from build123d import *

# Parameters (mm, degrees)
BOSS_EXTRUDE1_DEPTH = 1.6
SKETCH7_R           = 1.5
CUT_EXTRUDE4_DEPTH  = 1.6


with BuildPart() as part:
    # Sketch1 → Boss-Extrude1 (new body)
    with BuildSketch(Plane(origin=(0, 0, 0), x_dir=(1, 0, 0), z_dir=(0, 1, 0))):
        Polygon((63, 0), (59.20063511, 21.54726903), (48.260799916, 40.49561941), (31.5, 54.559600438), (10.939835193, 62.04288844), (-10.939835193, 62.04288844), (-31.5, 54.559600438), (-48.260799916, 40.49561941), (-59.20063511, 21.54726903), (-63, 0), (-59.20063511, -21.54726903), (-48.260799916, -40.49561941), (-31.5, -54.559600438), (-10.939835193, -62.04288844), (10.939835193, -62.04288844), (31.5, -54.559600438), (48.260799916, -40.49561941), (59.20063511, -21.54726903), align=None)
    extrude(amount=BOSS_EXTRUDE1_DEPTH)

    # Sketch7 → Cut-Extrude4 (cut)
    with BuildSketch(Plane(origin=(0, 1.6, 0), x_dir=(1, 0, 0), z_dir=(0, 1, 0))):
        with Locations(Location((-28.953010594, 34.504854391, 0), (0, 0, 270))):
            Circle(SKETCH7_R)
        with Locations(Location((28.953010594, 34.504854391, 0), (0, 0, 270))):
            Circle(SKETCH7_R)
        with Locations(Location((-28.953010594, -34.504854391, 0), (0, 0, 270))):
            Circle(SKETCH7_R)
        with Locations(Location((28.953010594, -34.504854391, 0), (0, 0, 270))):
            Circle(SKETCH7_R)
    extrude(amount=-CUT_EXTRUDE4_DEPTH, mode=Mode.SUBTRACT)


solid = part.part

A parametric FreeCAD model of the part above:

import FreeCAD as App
import Part
import Sketcher
from FreeCAD import Vector
Q = App.Units.Quantity

doc = App.newDocument("Part")
params = doc.addObject("Spreadsheet::Sheet", "Params")
for row, (alias, value) in enumerate([
    ("pad1_length", "1.6 mm"),
    ("sketch2_diameter", "3 mm"),
    ("pocket1_length", "1.6 mm"),
], start=1):
    params.set(f"A{row}", alias)
    params.set(f"B{row}", "=" + value)
    params.setAlias(f"B{row}", alias)

body = doc.addObject("PartDesign::Body", "Body")

sketch1 = body.newObject("Sketcher::SketchObject", "Sketch")
sketch1.AttachmentSupport = (doc.getObject("XZ_Plane"), [""])
sketch1.MapMode = "FlatFace"
sketch1.addGeometry([
    Part.LineSegment(Vector(63, 0, 0), Vector(59.200635, -21.547269, 0)),
    Part.LineSegment(Vector(59.200635, -21.547269, 0), Vector(48.2608, -40.495619, 0)),
    Part.LineSegment(Vector(48.2608, -40.495619, 0), Vector(31.5, -54.5596, 0)),
    Part.LineSegment(Vector(31.5, -54.5596, 0), Vector(10.939835, -62.042888, 0)),
    Part.LineSegment(Vector(10.939835, -62.042888, 0), Vector(-10.939835, -62.042888, 0)),
    Part.LineSegment(Vector(-10.939835, -62.042888, 0), Vector(-31.5, -54.5596, 0)),
    Part.LineSegment(Vector(-31.5, -54.5596, 0), Vector(-48.2608, -40.495619, 0)),
    Part.LineSegment(Vector(-48.2608, -40.495619, 0), Vector(-59.200635, -21.547269, 0)),
    Part.LineSegment(Vector(-59.200635, -21.547269, 0), Vector(-63, 0, 0)),
    Part.LineSegment(Vector(-63, 0, 0), Vector(-59.200635, 21.547269, 0)),
    Part.LineSegment(Vector(-59.200635, 21.547269, 0), Vector(-48.2608, 40.495619, 0)),
    Part.LineSegment(Vector(-48.2608, 40.495619, 0), Vector(-31.5, 54.5596, 0)),
    Part.LineSegment(Vector(-31.5, 54.5596, 0), Vector(-10.939835, 62.042888, 0)),
    Part.LineSegment(Vector(-10.939835, 62.042888, 0), Vector(10.939835, 62.042888, 0)),
    Part.LineSegment(Vector(10.939835, 62.042888, 0), Vector(31.5, 54.5596, 0)),
    Part.LineSegment(Vector(31.5, 54.5596, 0), Vector(48.2608, 40.495619, 0)),
    Part.LineSegment(Vector(48.2608, 40.495619, 0), Vector(59.200635, 21.547269, 0)),
    Part.LineSegment(Vector(59.200635, 21.547269, 0), Vector(63, 0, 0)),
], False)
sketch1.addConstraint([
    Sketcher.Constraint("Coincident", 0, 2, 1, 1),
    Sketcher.Constraint("Coincident", 1, 2, 2, 1),
    Sketcher.Constraint("Coincident", 2, 2, 3, 1),
    Sketcher.Constraint("Coincident", 3, 2, 4, 1),
    Sketcher.Constraint("Coincident", 4, 2, 5, 1),
    Sketcher.Constraint("Coincident", 5, 2, 6, 1),
    Sketcher.Constraint("Coincident", 6, 2, 7, 1),
    Sketcher.Constraint("Coincident", 7, 2, 8, 1),
    Sketcher.Constraint("Coincident", 8, 2, 9, 1),
    Sketcher.Constraint("Coincident", 9, 2, 10, 1),
    Sketcher.Constraint("Coincident", 10, 2, 11, 1),
    Sketcher.Constraint("Coincident", 11, 2, 12, 1),
    Sketcher.Constraint("Coincident", 12, 2, 13, 1),
    Sketcher.Constraint("Coincident", 13, 2, 14, 1),
    Sketcher.Constraint("Coincident", 14, 2, 15, 1),
    Sketcher.Constraint("Coincident", 15, 2, 16, 1),
    Sketcher.Constraint("Coincident", 16, 2, 17, 1),
    Sketcher.Constraint("Coincident", 17, 2, 0, 1),
    Sketcher.Constraint("Horizontal", 4),
    Sketcher.Constraint("Horizontal", 13),
    Sketcher.Constraint("Symmetric", 0, 2, 9, 2, -1, 1),
    Sketcher.Constraint("Symmetric", 1, 2, 10, 2, -1, 1),
    Sketcher.Constraint("Symmetric", 2, 2, 11, 2, -1, 1),
    Sketcher.Constraint("Symmetric", 3, 2, 12, 2, -1, 1),
    Sketcher.Constraint("Symmetric", 5, 2, 14, 2, -1, 1),
    Sketcher.Constraint("Symmetric", 6, 2, 15, 2, -1, 1),
    Sketcher.Constraint("Symmetric", 7, 2, 16, 2, -1, 1),
    Sketcher.Constraint("Symmetric", 8, 2, 17, 2, -1, 1),
    Sketcher.Constraint("Symmetric", 2, 2, 5, 2, -2),
    Sketcher.Constraint("Symmetric", 1, 2, 6, 2, -2),
    Sketcher.Constraint("Symmetric", 0, 2, 7, 2, -2),
    Sketcher.Constraint("PointOnObject", 8, 2, -1),
    Sketcher.Constraint("Parallel", 5, 14),
    Sketcher.Constraint("Vertical", 4, 2, 12, 2),
    Sketcher.Constraint("Equal", 0, 1),
    Sketcher.Constraint("Equal", 1, 2),
    Sketcher.Constraint("Equal", 2, 3),
    Sketcher.Constraint("Angle", 0, Q("-100 deg")),
    Sketcher.Constraint("Angle", 1, Q("-120 deg")),
    Sketcher.Constraint("Angle", 2, Q("-140 deg")),
    Sketcher.Constraint("Angle", 3, Q("-160 deg")),
    Sketcher.Constraint("DistanceX", 8, 2, -1, 1, 63.0),
    Sketcher.Constraint("DistanceX", 5, 2, 2, 2, 63.0),
])
pad1 = body.newObject("PartDesign::Pad", "Pad")
pad1.Profile = sketch1
pad1.setExpression("Length", "Params.pad1_length")
pad1.Reversed = True

sketch2 = body.newObject("Sketcher::SketchObject", "Sketch001")
sketch2.AttachmentSupport = (doc.getObject("XZ_Plane"), [""])
sketch2.MapMode = "FlatFace"
sketch2.AttachmentOffset = App.Placement(Vector(0, 0, -1.6), App.Rotation())
sketch2.addGeometry([
    Part.Circle(Vector(-28.953011, -34.504854, 0), Vector(0, 0, 1), 1.5),
    Part.Circle(Vector(28.953011, -34.504854, 0), Vector(0, 0, 1), 1.5),
    Part.Circle(Vector(-28.953011, 34.504854, 0), Vector(0, 0, 1), 1.5),
    Part.Circle(Vector(28.953011, 34.504854, 0), Vector(0, 0, 1), 1.5),
], False)
sketch2.addConstraint([
    Sketcher.Constraint("Equal", 0, 1),
    Sketcher.Constraint("Equal", 1, 2),
    Sketcher.Constraint("Equal", 2, 3),
    Sketcher.Constraint("Symmetric", 1, 3, 2, 3, -1, 1),
    Sketcher.Constraint("Symmetric", 0, 3, 3, 3, -1, 1),
    Sketcher.Constraint("Symmetric", 0, 3, 1, 3, -2),
    Sketcher.Constraint("Diameter", 0, 3.0),
    Sketcher.Constraint("DistanceX", 0, 3, -1, 1, 28.953011),
    Sketcher.Constraint("DistanceY", 0, 3, 2, 3, 69.009709),
])
sketch2.setExpression("Constraints[6]", "Params.sketch2_diameter")
pocket1 = body.newObject("PartDesign::Pocket", "Pocket")
pocket1.Profile = sketch2
pocket1.setExpression("Length", "Params.pocket1_length")
pocket1.Reversed = True

doc.recompute()
